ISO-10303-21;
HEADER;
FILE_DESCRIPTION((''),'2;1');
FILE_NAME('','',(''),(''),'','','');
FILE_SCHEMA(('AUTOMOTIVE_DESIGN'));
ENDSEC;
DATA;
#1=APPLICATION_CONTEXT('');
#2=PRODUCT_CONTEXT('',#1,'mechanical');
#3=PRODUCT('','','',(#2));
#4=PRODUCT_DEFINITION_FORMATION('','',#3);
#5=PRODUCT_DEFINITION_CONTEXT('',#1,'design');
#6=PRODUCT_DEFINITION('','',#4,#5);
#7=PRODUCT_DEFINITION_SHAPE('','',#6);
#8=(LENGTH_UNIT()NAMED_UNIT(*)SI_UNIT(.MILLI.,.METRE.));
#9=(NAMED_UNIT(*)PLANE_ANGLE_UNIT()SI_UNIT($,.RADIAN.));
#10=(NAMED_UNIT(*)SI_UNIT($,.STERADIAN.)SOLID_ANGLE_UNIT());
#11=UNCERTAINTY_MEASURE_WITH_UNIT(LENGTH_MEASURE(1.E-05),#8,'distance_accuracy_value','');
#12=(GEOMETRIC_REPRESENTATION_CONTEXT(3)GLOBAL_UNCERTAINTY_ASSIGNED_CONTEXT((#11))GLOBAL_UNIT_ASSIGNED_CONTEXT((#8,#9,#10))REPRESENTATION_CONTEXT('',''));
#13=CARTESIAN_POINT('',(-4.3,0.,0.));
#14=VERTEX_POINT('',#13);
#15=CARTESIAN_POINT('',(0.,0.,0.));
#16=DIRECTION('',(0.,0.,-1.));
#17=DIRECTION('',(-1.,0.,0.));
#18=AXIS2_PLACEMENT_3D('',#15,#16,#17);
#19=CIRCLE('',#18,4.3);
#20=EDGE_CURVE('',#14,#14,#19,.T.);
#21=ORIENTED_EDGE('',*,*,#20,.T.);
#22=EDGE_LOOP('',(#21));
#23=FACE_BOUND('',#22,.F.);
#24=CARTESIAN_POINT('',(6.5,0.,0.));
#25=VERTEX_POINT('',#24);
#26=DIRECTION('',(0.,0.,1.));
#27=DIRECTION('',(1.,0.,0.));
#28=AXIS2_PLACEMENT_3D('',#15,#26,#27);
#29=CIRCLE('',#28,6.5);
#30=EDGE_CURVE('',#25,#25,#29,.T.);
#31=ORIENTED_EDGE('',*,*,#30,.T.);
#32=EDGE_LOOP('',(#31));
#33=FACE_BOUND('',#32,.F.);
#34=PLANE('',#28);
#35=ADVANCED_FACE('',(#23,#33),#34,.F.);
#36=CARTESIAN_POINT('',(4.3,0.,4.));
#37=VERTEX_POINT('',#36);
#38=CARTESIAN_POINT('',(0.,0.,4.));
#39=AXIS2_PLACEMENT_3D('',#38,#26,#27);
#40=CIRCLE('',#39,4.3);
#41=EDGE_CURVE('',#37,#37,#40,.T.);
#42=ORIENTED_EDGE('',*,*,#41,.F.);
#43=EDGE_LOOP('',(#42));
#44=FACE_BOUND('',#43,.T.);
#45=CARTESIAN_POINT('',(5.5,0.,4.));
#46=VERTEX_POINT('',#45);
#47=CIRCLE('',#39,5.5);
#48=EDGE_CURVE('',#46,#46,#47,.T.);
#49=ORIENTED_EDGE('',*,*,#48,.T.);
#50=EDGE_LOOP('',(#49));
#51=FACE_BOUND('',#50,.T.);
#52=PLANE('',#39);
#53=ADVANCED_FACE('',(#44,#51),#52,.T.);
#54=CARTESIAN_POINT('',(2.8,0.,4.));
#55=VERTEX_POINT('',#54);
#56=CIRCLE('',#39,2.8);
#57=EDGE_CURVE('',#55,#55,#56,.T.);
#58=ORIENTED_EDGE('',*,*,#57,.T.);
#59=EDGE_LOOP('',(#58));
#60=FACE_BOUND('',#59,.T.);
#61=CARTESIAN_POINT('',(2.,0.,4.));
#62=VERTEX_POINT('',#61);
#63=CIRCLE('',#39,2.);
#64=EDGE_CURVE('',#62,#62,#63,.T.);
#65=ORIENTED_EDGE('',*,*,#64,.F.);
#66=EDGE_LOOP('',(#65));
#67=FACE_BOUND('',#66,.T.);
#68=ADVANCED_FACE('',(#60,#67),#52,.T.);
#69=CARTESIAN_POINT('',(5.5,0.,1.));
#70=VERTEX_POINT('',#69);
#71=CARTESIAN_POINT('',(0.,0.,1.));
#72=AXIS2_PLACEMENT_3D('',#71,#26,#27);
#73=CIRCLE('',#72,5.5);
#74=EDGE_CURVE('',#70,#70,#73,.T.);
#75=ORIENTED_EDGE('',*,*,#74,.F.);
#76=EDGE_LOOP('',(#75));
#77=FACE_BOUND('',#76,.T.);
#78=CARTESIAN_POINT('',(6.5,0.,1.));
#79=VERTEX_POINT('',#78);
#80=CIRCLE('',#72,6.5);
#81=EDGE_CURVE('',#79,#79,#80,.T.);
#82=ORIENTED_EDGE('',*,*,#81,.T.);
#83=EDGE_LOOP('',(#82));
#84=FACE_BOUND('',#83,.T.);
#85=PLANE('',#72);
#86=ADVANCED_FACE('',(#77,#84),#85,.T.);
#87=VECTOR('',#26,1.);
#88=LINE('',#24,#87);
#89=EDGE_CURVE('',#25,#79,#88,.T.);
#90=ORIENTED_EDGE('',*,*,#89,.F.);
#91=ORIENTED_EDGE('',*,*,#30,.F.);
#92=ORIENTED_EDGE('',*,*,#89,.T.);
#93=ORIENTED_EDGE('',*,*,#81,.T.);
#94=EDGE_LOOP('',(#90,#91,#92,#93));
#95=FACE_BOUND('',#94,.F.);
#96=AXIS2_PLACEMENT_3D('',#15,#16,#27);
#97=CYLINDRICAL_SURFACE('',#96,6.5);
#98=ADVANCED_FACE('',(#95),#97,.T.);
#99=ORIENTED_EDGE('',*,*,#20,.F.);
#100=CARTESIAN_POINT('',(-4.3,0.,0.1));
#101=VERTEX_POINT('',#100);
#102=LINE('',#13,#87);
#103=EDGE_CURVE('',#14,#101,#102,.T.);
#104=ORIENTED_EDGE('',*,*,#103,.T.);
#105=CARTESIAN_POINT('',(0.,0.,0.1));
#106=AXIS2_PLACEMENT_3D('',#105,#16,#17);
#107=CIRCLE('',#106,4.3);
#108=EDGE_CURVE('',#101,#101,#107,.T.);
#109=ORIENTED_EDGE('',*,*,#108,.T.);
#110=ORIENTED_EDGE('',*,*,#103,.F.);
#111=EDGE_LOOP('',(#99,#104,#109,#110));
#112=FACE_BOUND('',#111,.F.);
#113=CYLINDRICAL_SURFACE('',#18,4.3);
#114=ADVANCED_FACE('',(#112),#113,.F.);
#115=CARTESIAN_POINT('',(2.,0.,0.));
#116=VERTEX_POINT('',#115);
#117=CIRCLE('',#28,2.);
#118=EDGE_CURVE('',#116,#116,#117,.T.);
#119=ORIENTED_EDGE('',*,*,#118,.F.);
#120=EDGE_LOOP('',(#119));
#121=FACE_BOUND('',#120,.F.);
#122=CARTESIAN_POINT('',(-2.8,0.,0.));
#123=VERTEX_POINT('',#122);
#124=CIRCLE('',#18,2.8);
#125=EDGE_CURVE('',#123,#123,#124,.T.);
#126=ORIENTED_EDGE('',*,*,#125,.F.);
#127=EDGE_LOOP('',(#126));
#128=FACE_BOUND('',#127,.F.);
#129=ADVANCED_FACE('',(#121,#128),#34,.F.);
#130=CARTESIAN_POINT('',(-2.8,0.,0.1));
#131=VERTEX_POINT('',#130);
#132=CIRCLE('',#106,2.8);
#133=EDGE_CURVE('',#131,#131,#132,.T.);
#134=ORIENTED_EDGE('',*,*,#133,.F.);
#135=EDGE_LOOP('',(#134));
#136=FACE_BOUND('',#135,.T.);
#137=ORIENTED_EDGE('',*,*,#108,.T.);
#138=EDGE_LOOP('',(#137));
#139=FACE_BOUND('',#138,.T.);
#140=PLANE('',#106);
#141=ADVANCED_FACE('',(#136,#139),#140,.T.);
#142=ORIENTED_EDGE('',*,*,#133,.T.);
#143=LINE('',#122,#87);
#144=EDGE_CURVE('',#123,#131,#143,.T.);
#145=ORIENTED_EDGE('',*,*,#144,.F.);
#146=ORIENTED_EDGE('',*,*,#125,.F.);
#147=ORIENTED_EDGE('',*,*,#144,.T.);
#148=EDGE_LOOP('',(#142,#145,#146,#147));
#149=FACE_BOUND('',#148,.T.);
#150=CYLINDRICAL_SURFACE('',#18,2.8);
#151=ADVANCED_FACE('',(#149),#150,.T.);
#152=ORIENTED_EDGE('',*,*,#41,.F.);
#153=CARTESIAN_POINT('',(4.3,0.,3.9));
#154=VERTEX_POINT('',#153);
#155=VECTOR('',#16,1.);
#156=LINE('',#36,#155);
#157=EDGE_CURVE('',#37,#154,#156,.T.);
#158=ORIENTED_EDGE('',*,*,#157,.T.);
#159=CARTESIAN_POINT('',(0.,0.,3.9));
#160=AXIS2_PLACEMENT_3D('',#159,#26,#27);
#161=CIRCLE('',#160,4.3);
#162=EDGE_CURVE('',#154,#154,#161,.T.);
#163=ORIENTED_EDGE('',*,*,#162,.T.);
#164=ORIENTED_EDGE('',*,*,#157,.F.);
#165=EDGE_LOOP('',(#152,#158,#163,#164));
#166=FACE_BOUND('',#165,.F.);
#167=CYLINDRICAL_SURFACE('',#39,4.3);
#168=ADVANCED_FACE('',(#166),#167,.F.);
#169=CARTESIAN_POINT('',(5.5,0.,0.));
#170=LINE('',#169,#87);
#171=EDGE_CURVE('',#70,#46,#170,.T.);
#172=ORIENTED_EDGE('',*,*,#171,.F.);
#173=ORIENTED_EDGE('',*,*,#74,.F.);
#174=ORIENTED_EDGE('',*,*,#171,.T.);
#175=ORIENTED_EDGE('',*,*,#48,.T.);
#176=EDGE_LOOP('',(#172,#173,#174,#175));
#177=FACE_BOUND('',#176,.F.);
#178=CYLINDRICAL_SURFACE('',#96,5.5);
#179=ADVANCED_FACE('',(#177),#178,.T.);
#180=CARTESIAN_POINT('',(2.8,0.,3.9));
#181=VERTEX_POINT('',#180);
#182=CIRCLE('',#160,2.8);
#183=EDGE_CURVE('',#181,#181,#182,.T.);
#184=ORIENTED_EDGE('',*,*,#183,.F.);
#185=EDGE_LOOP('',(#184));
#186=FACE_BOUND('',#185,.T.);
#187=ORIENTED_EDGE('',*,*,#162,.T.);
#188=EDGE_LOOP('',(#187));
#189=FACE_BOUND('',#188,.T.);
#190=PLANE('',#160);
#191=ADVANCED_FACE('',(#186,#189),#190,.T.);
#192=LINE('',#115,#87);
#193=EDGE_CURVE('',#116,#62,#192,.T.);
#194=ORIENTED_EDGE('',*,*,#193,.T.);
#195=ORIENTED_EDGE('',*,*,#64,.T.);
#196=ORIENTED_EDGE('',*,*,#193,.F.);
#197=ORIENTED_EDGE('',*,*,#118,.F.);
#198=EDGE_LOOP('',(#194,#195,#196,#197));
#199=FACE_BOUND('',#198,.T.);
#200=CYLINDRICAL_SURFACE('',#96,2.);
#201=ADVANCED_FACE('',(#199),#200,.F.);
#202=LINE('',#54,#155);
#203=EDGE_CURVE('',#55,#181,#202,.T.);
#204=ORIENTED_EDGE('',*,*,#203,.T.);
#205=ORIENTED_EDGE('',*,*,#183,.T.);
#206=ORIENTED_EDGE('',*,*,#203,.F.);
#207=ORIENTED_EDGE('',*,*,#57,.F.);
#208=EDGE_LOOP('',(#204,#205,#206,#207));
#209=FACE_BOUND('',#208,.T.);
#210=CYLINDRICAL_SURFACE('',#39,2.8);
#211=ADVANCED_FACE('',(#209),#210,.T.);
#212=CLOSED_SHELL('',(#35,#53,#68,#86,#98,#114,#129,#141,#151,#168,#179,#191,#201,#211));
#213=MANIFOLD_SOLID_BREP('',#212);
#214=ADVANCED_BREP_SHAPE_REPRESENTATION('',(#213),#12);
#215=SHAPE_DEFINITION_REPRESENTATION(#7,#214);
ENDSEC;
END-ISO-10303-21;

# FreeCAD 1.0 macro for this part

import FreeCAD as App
import Part
import Sketcher

V = App.Vector
Q = App.Units.Quantity

doc = App.newDocument("Part")
params = doc.addObject("Spreadsheet::Sheet", "Params")
for row, (alias, value) in enumerate([
    ("sketch1_diameter", "11 mm"),
    ("sketch1_diameter2", "4 mm"),
    ("pad1_length", "4 mm"),
    ("sketch2_diameter", "11 mm"),
    ("sketch2_diameter2", "13 mm"),
    ("pad2_length", "1 mm"),
    ("sketch3_diameter", "8.6 mm"),
    ("sketch3_diameter2", "5.6 mm"),
    ("pocket1_length", "0.1 mm"),
    ("sketch4_diameter", "8.6 mm"),
    ("sketch4_diameter2", "5.6 mm"),
    ("pocket2_length", "0.1 mm"),
], start=1):
    params.set(f"A{row}", alias)
    params.set(f"B{row}", "=" + value)
    params.setAlias(f"B{row}", alias)

body = doc.addObject("PartDesign::Body", "Body")

# Sketch on XY plane
sketch1 = body.newObject("Sketcher::SketchObject", "Sketch")
sketch1.AttachmentSupport = (doc.getObject("XY_Plane"), [""])
sketch1.MapMode = "FlatFace"
sketch1.addGeometry([
    Part.Circle(V(0, 0, 0), V(0, 0, 1), 5.5),
    Part.Circle(V(0, 0, 0), V(0, 0, 1), 2),
], False)
sketch1.addConstraint([
    Sketcher.Constraint("Coincident", 0, 3, -1, 1),
    Sketcher.Constraint("Coincident", 1, 3, -1, 1),
    Sketcher.Constraint("Diameter", 0, Q("11 mm")),
    Sketcher.Constraint("Diameter", 1, Q("4 mm")),
])
sketch1.setExpression("Constraints[2]", "Params.sketch1_diameter")
sketch1.setExpression("Constraints[3]", "Params.sketch1_diameter2")
pad1 = body.newObject("PartDesign::Pad", "Pad")
pad1.Profile = sketch1
pad1.setExpression("Length", "Params.pad1_length")

# Sketch on XY plane
sketch2 = body.newObject("Sketcher::SketchObject", "Sketch001")
sketch2.AttachmentSupport = (doc.getObject("XY_Plane"), [""])
sketch2.MapMode = "FlatFace"
sketch2.addGeometry([
    Part.Circle(V(0, 0, 0), V(0, 0, 1), 6),
    Part.Circle(V(0, 0, 0), V(0, 0, 1), 6),
], False)
sketch2.addConstraint([
    Sketcher.Constraint("Coincident", 0, 3, -1, 1),
    Sketcher.Constraint("Coincident", 1, 3, -1, 1),
    Sketcher.Constraint("Diameter", 1, Q("11 mm")),
    Sketcher.Constraint("Diameter", 0, Q("13 mm")),
])
sketch2.setExpression("Constraints[2]", "Params.sketch2_diameter")
sketch2.setExpression("Constraints[3]", "Params.sketch2_diameter2")
pad2 = body.newObject("PartDesign::Pad", "Pad001")
pad2.Profile = sketch2
pad2.setExpression("Length", "Params.pad2_length")

# Sketch on XY plane
sketch3 = body.newObject("Sketcher::SketchObject", "Sketch002")
sketch3.AttachmentSupport = (doc.getObject("XY_Plane"), [""])
sketch3.MapMode = "FlatFace"
sketch3.addGeometry([
    Part.Circle(V(0, 0, 0), V(0, 0, 1), 4.3),
    Part.Circle(V(0, 0, 0), V(0, 0, 1), 2.8),
], False)
sketch3.addConstraint([
    Sketcher.Constraint("Coincident", 0, 3, -1, 1),
    Sketcher.Constraint("Coincident", 1, 3, -1, 1),
    Sketcher.Constraint("Diameter", 0, Q("8.6 mm")),
    Sketcher.Constraint("Diameter", 1, Q("5.6 mm")),
])
sketch3.setExpression("Constraints[2]", "Params.sketch3_diameter")
sketch3.setExpression("Constraints[3]", "Params.sketch3_diameter2")
pocket1 = body.newObject("PartDesign::Pocket", "Pocket")
pocket1.Profile = sketch3
pocket1.setExpression("Length", "Params.pocket1_length")
pocket1.Reversed = True

# Sketch on XY plane
sketch4 = body.newObject("Sketcher::SketchObject", "Sketch003")
sketch4.AttachmentSupport = (doc.getObject("XY_Plane"), [""])
sketch4.MapMode = "FlatFace"
sketch4.AttachmentOffset = App.Placement(V(0, 0, 4), App.Rotation())
sketch4.addGeometry([
    Part.Circle(V(0, 0, 0), V(0, 0, 1), 4.3),
    Part.Circle(V(0, 0, 0), V(0, 0, 1), 2.8),
], False)
sketch4.addConstraint([
    Sketcher.Constraint("Coincident", 0, 3, -1, 1),
    Sketcher.Constraint("Coincident", 1, 3, -1, 1),
    Sketcher.Constraint("Diameter", 0, Q("8.6 mm")),
    Sketcher.Constraint("Diameter", 1, Q("5.6 mm")),
])
sketch4.setExpression("Constraints[2]", "Params.sketch4_diameter")
sketch4.setExpression("Constraints[3]", "Params.sketch4_diameter2")
pocket2 = body.newObject("PartDesign::Pocket", "Pocket001")
pocket2.Profile = sketch4
pocket2.setExpression("Length", "Params.pocket2_length")

doc.recompute()
